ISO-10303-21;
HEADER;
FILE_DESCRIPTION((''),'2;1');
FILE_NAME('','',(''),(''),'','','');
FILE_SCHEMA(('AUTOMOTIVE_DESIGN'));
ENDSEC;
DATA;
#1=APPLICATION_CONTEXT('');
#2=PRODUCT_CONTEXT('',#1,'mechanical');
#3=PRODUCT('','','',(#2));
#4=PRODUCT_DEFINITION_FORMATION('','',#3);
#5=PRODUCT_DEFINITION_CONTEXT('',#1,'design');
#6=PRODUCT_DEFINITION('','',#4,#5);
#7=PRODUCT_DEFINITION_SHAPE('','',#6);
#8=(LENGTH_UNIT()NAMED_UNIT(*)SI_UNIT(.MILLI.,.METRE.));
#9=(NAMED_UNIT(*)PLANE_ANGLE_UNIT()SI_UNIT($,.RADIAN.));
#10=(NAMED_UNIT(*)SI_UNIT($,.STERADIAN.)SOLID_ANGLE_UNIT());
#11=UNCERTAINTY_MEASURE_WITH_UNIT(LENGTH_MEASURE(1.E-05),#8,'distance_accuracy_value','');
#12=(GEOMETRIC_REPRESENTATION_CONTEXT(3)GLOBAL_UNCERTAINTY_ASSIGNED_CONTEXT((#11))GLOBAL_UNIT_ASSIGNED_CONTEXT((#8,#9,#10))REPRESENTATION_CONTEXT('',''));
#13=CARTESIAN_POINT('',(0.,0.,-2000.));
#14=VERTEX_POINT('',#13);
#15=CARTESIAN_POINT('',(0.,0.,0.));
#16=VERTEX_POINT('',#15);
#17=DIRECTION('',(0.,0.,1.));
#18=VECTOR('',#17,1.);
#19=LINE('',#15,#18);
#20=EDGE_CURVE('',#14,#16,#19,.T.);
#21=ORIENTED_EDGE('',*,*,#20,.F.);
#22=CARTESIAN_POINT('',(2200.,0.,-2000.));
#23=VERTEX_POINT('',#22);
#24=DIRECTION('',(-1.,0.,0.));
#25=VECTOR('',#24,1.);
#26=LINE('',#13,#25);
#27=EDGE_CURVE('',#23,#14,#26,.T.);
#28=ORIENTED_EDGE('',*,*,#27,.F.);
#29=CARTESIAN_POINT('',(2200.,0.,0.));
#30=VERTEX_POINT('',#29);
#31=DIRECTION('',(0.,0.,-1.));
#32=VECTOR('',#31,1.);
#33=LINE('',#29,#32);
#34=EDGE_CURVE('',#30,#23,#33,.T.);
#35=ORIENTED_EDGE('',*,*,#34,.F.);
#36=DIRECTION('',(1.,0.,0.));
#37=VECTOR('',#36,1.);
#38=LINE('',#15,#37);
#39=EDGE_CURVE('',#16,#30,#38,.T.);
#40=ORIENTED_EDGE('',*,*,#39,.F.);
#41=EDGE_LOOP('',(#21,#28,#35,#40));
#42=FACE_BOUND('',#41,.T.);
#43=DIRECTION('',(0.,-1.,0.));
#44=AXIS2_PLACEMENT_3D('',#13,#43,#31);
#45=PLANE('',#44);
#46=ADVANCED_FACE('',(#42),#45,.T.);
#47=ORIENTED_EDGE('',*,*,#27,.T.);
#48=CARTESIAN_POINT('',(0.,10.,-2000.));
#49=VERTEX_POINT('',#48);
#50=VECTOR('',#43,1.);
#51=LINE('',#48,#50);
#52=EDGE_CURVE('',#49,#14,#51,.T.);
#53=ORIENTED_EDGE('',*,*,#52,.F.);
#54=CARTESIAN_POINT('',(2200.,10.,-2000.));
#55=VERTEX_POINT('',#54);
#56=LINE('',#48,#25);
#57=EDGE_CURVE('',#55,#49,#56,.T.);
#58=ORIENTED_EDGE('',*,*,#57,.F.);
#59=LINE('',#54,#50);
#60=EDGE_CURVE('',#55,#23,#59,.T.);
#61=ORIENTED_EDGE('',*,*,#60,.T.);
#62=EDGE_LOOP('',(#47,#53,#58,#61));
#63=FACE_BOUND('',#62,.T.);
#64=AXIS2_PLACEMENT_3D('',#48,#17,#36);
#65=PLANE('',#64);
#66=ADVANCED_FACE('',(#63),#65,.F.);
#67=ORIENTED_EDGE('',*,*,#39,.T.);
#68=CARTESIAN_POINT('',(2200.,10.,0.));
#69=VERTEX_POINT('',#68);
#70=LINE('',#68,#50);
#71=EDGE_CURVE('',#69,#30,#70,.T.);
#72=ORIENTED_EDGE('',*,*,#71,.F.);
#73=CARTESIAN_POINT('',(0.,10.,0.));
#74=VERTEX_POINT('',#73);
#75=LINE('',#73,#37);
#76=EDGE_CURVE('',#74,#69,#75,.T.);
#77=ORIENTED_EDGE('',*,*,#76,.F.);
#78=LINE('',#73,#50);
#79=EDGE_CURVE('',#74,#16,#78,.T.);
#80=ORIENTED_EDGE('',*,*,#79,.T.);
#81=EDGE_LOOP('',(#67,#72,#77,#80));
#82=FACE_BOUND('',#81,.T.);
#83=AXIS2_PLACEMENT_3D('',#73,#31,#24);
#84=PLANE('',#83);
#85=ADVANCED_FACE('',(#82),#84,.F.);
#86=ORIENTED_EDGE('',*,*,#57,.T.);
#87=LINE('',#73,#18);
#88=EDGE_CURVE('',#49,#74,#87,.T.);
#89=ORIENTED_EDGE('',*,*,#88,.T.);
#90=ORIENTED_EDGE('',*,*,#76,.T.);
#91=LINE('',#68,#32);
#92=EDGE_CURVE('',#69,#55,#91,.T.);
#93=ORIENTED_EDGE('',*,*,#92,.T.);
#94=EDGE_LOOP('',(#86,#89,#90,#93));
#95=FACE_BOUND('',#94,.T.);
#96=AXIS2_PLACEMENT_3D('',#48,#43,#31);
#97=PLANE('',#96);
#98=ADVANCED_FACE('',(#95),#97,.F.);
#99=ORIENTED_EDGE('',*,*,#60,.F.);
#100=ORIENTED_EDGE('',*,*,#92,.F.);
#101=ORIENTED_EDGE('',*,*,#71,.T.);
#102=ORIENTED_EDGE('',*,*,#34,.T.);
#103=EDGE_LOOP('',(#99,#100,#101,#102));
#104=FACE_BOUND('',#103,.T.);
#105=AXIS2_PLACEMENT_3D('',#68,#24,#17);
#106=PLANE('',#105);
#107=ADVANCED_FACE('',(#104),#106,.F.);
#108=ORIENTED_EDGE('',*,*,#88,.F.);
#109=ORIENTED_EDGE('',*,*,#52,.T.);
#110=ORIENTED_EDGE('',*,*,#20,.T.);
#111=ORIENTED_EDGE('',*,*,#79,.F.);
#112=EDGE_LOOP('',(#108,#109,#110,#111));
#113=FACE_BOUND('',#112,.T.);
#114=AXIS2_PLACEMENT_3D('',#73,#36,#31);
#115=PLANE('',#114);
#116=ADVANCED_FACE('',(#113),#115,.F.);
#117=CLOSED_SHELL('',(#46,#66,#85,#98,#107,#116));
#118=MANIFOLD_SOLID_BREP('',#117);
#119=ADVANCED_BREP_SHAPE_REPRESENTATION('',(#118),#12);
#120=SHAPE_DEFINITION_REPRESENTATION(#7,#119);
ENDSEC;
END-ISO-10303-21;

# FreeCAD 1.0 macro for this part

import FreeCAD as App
import Part
import Sketcher

V = App.Vector


def add_polygon(sketch, points):
    """Adds a closed chain of lines whose ends are joined by coincident constraints."""
    first, n = sketch.GeometryCount, len(points)
    for a, b in zip(points, points[1:] + points[:1]):
        sketch.addGeometry(Part.LineSegment(App.Vector(*a, 0), App.Vector(*b, 0)), False)
    for i in range(n):
        sketch.addConstraint(Sketcher.Constraint("Coincident", first + i, 2, first + (i + 1) % n, 1))

doc = App.newDocument("Part")
body = doc.addObject("PartDesign::Body", "Body")

sketch1 = doc.addObject("Sketcher::SketchObject", "Sketch")
body.addObject(sketch1)
sketch1.AttachmentSupport = (doc.XZ_Plane, [""])
sketch1.MapMode = "FlatFace"
add_polygon(sketch1, [(0, -2000), (0, 0), (2200, 0), (2200, -2000)])
sketch1.addConstraint(Sketcher.Constraint("Vertical", 0))
sketch1.addConstraint(Sketcher.Constraint("Horizontal", 1))
sketch1.addConstraint(Sketcher.Constraint("Vertical", 2))
sketch1.addConstraint(Sketcher.Constraint("Horizontal", 3))
sketch1.addConstraint(Sketcher.Constraint("Coincident", 0, 2, -1, 1))
sketch1.addConstraint(Sketcher.Constraint("DistanceX", 1, 1, 1, 2, 2200.0))
sketch1.addConstraint(Sketcher.Constraint("DistanceY", 0, 1, 0, 2, 2000.0))
pad1 = doc.addObject("PartDesign::Pad", "Pad")
body.addObject(pad1)
pad1.Profile = sketch1
pad1.Length = 10
pad1.Reversed = True

doc.recompute()
